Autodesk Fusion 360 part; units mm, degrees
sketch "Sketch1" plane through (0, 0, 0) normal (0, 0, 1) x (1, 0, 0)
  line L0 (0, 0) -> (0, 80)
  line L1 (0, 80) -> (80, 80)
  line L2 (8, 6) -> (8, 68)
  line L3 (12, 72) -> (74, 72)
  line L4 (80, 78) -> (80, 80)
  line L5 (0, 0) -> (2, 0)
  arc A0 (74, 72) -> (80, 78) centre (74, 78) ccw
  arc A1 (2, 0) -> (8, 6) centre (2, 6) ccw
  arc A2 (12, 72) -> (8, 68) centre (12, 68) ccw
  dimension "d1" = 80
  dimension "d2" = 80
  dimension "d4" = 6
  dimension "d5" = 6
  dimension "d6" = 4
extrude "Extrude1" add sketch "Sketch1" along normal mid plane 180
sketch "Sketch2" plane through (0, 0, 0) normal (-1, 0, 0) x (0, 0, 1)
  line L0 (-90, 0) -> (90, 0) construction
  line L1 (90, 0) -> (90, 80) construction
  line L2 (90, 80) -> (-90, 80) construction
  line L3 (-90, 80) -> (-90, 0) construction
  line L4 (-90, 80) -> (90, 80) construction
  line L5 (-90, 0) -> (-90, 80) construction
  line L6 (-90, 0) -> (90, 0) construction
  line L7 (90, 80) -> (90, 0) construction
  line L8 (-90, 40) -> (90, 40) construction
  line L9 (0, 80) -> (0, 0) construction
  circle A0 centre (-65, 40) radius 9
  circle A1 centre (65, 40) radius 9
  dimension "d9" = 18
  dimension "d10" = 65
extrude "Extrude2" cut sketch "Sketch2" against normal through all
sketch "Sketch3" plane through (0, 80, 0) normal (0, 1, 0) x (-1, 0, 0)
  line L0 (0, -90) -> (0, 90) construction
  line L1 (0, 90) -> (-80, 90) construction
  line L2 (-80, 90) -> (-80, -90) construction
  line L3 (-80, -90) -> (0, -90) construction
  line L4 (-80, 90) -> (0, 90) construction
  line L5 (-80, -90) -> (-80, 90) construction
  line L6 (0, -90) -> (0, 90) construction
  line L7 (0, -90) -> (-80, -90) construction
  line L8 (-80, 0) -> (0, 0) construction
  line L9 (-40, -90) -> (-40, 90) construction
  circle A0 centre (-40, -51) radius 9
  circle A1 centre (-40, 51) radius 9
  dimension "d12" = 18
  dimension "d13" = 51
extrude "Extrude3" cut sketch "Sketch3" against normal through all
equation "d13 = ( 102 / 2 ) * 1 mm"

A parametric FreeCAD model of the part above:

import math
import FreeCAD as App
import Part
import Sketcher
from FreeCAD import Vector

doc = App.newDocument("Part")
body = doc.addObject("PartDesign::Body", "Body")

sketch1 = doc.addObject("Sketcher::SketchObject", "Sketch")
body.addObject(sketch1)
sketch1.AttachmentSupport = (doc.XY_Plane, [""])
sketch1.MapMode = "FlatFace"
sketch1.addGeometry([
    Part.LineSegment(Vector(0, 80, 0), Vector(0, 0, 0)),
    Part.LineSegment(Vector(0, 0, 0), Vector(2, 0, 0)),
    Part.ArcOfCircle(Part.Circle(Vector(2, 6, 0), Vector(0, 0, 1), 6), math.radians(-90), math.radians(0)),
    Part.LineSegment(Vector(8, 6, 0), Vector(8, 68, 0)),
    Part.ArcOfCircle(Part.Circle(Vector(12, 68, 0), Vector(0, 0, 1), 4), math.radians(90), math.radians(180)),
    Part.LineSegment(Vector(12, 72, 0), Vector(74, 72, 0)),
    Part.ArcOfCircle(Part.Circle(Vector(74, 78, 0), Vector(0, 0, 1), 6), math.radians(-90), math.radians(0)),
    Part.LineSegment(Vector(80, 78, 0), Vector(80, 80, 0)),
    Part.LineSegment(Vector(80, 80, 0), Vector(0, 80, 0)),
], False)
sketch1.addConstraint([
    Sketcher.Constraint("Coincident", 0, 2, 1, 1),
    Sketcher.Constraint("Tangent", 1, 2, 2, 1),
    Sketcher.Constraint("Tangent", 2, 2, 3, 1),
    Sketcher.Constraint("Tangent", 3, 2, 4, 2),
    Sketcher.Constraint("Tangent", 4, 1, 5, 1),
    Sketcher.Constraint("Tangent", 5, 2, 6, 1),
    Sketcher.Constraint("Tangent", 6, 2, 7, 1),
    Sketcher.Constraint("Coincident", 7, 2, 8, 1),
    Sketcher.Constraint("Coincident", 8, 2, 0, 1),
    Sketcher.Constraint("Vertical", 0),
    Sketcher.Constraint("Horizontal", 1),
    Sketcher.Constraint("Vertical", 3),
    Sketcher.Constraint("Horizontal", 5),
    Sketcher.Constraint("Vertical", 7),
    Sketcher.Constraint("Horizontal", 8),
    Sketcher.Constraint("Coincident", 0, 2, -1, 1),
    Sketcher.Constraint("Equal", 2, 6),
    Sketcher.Constraint("Equal", 8, 0),
    Sketcher.Constraint("Equal", 5, 3),
    Sketcher.Constraint("Radius", 2, 6.0),
    Sketcher.Constraint("Radius", 4, 4.0),
    Sketcher.Constraint("DistanceX", 8, 2, 8, 1, 80.0),
    Sketcher.Constraint("DistanceX", 1, 1, 1, 2, 2.0),
])
pad1 = doc.addObject("PartDesign::Pad", "Pad")
body.addObject(pad1)
pad1.Profile = sketch1
pad1.Length = 180
pad1.Midplane = True

sketch2 = doc.addObject("Sketcher::SketchObject", "Sketch001")
body.addObject(sketch2)
sketch2.AttachmentSupport = (doc.YZ_Plane, [""])
sketch2.MapMode = "FlatFace"
sketch2.addGeometry([
    Part.Circle(Vector(40, -65, 0), Vector(0, 0, 1), 9),
    Part.Circle(Vector(40, 65, 0), Vector(0, 0, 1), 9),
], False)
sketch2.addConstraint([
    Sketcher.Constraint("Equal", 0, 1),
    Sketcher.Constraint("Symmetric", 0, 3, 1, 3, -1),
    Sketcher.Constraint("Diameter", 0, 18.0),
    Sketcher.Constraint("DistanceY", 0, 3, -1, 1, 65.0),
    Sketcher.Constraint("DistanceX", -1, 1, 0, 3, 40.0),
])
pocket1 = doc.addObject("PartDesign::Pocket", "Pocket")
body.addObject(pocket1)
pocket1.Profile = sketch2
pocket1.Type = "ThroughAll"
pocket1.Reversed = True

sketch3 = doc.addObject("Sketcher::SketchObject", "Sketch002")
body.addObject(sketch3)
sketch3.AttachmentSupport = (doc.XZ_Plane, [""])
sketch3.MapMode = "FlatFace"
sketch3.AttachmentOffset = App.Placement(Vector(0, 0, -80), App.Rotation())
sketch3.addGeometry([
    Part.Circle(Vector(40, -51, 0), Vector(0, 0, 1), 9),
    Part.Circle(Vector(40, 51, 0), Vector(0, 0, 1), 9),
], False)
sketch3.addConstraint([
    Sketcher.Constraint("Equal", 0, 1),
    Sketcher.Constraint("Symmetric", 0, 3, 1, 3, -1),
    Sketcher.Constraint("Diameter", 0, 18.0),
    Sketcher.Constraint("DistanceY", 0, 3, -1, 1, 51.0),
    Sketcher.Constraint("DistanceX", -1, 1, 0, 3, 40.0),
])
pocket2 = doc.addObject("PartDesign::Pocket", "Pocket001")
body.addObject(pocket2)
pocket2.Profile = sketch3
pocket2.Type = "ThroughAll"
pocket2.Reversed = True

doc.recompute()
